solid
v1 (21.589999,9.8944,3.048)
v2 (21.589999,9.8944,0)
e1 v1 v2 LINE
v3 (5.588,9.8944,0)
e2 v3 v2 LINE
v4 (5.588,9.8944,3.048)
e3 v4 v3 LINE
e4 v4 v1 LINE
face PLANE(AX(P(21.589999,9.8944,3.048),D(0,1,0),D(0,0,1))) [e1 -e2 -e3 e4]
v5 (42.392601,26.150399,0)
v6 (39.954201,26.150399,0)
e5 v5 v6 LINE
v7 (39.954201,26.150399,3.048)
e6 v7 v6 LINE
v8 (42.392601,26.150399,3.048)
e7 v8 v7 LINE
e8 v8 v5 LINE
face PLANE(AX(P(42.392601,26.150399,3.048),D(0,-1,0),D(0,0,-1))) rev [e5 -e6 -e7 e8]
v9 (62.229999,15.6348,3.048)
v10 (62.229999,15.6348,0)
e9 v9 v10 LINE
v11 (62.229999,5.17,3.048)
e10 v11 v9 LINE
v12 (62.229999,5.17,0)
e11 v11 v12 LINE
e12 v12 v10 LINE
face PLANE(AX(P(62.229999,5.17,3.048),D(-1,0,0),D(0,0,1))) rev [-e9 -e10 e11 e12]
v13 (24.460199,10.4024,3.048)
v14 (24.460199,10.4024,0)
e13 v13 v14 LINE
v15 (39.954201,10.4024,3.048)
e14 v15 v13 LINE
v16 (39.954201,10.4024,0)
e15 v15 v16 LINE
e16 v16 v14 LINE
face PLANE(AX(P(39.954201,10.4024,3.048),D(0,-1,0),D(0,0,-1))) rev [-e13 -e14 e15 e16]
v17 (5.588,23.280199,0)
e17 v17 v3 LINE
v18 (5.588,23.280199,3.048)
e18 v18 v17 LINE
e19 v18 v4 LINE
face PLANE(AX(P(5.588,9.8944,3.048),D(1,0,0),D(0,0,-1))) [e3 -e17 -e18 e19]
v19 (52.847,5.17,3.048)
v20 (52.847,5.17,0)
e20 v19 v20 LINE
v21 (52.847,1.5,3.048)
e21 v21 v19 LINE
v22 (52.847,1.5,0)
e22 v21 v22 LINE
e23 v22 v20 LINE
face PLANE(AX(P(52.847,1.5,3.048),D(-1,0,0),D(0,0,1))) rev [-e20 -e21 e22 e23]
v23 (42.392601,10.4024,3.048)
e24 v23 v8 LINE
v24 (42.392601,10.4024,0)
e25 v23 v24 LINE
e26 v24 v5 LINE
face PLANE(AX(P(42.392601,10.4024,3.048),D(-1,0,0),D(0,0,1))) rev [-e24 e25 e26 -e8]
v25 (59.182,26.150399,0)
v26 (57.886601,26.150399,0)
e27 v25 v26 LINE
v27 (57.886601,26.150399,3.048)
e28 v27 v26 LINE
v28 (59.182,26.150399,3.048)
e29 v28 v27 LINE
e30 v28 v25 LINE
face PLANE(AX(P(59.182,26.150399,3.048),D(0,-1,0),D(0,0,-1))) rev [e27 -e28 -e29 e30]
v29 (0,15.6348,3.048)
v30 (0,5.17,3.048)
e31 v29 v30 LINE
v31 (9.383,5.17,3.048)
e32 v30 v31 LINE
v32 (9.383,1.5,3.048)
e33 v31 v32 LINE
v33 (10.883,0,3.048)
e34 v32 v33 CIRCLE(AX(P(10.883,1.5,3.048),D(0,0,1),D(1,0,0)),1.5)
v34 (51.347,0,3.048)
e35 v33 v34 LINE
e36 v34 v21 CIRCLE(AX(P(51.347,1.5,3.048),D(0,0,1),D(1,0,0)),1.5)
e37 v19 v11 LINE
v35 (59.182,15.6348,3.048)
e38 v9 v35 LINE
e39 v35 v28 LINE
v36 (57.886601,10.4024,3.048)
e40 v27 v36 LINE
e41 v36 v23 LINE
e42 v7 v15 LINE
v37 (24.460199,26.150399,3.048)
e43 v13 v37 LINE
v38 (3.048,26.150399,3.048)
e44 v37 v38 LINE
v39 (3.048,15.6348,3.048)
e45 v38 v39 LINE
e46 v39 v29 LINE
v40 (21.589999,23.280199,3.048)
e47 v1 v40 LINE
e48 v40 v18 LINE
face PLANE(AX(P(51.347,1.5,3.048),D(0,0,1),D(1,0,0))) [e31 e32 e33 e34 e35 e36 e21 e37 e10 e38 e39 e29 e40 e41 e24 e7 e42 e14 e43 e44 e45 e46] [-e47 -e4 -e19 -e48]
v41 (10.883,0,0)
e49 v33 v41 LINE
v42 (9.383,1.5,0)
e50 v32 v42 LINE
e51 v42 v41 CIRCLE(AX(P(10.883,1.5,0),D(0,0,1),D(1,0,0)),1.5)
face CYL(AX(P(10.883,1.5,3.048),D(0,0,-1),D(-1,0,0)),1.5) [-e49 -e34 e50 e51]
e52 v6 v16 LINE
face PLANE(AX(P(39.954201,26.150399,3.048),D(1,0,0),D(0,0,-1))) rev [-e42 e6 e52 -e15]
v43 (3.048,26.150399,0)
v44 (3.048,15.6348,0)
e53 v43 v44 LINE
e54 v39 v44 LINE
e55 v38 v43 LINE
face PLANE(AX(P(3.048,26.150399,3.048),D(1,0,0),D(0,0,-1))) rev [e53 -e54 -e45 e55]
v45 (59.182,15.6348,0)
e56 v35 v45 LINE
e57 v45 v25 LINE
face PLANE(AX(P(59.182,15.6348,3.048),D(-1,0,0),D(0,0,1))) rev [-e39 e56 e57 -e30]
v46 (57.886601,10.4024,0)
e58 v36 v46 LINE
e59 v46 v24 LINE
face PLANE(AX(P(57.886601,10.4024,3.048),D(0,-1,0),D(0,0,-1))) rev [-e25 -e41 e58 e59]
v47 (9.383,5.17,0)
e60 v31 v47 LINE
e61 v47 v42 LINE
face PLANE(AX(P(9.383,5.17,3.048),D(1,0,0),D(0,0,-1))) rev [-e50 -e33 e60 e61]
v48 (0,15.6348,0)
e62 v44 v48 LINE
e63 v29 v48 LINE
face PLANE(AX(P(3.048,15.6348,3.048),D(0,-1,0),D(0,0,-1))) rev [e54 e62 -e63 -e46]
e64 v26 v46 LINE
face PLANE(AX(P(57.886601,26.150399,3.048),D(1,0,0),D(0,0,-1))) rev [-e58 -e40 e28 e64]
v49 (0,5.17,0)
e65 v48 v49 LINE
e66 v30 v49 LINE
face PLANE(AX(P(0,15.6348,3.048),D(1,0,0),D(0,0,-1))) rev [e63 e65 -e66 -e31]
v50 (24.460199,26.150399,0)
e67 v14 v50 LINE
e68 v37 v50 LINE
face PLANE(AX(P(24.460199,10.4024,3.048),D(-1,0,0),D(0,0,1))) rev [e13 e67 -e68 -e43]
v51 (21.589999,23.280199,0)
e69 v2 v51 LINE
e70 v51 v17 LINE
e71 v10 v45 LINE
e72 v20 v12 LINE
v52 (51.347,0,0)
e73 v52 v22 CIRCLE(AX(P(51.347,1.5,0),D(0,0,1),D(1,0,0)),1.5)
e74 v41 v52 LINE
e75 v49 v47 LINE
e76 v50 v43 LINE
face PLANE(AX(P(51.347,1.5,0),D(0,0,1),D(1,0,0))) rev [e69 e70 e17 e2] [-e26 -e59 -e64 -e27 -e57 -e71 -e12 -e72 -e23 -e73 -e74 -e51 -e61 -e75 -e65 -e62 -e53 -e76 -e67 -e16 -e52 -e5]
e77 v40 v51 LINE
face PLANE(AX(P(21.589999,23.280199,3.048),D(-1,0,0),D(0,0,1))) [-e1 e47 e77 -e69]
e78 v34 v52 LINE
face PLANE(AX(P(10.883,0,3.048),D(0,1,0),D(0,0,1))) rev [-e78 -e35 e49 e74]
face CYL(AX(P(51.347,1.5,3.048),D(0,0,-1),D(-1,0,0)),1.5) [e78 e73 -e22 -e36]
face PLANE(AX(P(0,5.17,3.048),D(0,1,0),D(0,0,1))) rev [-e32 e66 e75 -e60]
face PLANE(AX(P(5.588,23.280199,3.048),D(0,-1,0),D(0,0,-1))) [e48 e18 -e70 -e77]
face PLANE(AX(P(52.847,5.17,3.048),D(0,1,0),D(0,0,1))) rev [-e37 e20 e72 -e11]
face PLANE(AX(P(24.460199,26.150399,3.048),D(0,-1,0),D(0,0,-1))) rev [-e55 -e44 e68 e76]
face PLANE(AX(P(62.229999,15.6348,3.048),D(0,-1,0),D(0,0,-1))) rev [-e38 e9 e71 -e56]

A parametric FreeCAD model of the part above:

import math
import FreeCAD as App
import Part
import Sketcher

V = App.Vector
Q = App.Units.Quantity

doc = App.newDocument("Part")
body = doc.addObject("PartDesign::Body", "Body")

sketch1 = body.newObject("Sketcher::SketchObject", "Sketch")
sketch1.AttachmentSupport = (doc.getObject("XY_Plane"), [""])
sketch1.MapMode = "FlatFace"
sketch1.addGeometry(Part.LineSegment(V(3, 15.6, 0), V(0, 15.6, 0)), False)
sketch1.addGeometry(Part.LineSegment(V(0, 15.6, 0), V(0, 5.2, 0)), False)
sketch1.addGeometry(Part.LineSegment(V(0, 5.2, 0), V(9.4, 5.2, 0)), False)
sketch1.addGeometry(Part.LineSegment(V(9.4, 5.2, 0), V(9.4, 1.5, 0)), False)
sketch1.addGeometry(Part.ArcOfCircle(Part.Circle(V(10.9, 1.5, 0), V(0, 0, 1), 1.5), math.radians(180), math.radians(270)), False)
sketch1.addGeometry(Part.LineSegment(V(10.9, 0, 0), V(51.3, 0, 0)), False)
sketch1.addGeometry(Part.ArcOfCircle(Part.Circle(V(51.3, 1.5, 0), V(0, 0, 1), 1.5), math.radians(-90), math.radians(0)), False)
sketch1.addGeometry(Part.LineSegment(V(52.8, 1.5, 0), V(52.8, 5.2, 0)), False)
sketch1.addGeometry(Part.LineSegment(V(52.8, 5.2, 0), V(62.2, 5.2, 0)), False)
sketch1.addGeometry(Part.LineSegment(V(62.2, 5.2, 0), V(62.2, 15.6, 0)), False)
sketch1.addGeometry(Part.LineSegment(V(62.2, 15.6, 0), V(59.2, 15.6, 0)), False)
sketch1.addGeometry(Part.LineSegment(V(59.2, 15.6, 0), V(59.2, 26.2, 0)), False)
sketch1.addGeometry(Part.LineSegment(V(59.2, 26.2, 0), V(57.9, 26.2, 0)), False)
sketch1.addGeometry(Part.LineSegment(V(57.9, 26.2, 0), V(57.9, 10.4, 0)), False)
sketch1.addGeometry(Part.LineSegment(V(57.9, 10.4, 0), V(42.4, 10.4, 0)), False)
sketch1.addGeometry(Part.LineSegment(V(42.4, 10.4, 0), V(42.4, 26.2, 0)), False)
sketch1.addGeometry(Part.LineSegment(V(42.4, 26.2, 0), V(40, 26.2, 0)), False)
sketch1.addGeometry(Part.LineSegment(V(40, 26.2, 0), V(40, 10.4, 0)), False)
sketch1.addGeometry(Part.LineSegment(V(40, 10.4, 0), V(24.5, 10.4, 0)), False)
sketch1.addGeometry(Part.LineSegment(V(24.5, 10.4, 0), V(24.5, 26.2, 0)), False)
sketch1.addGeometry(Part.LineSegment(V(24.5, 26.2, 0), V(3, 26.2, 0)), False)
sketch1.addGeometry(Part.LineSegment(V(3, 26.2, 0), V(3, 15.6, 0)), False)
sketch1.addGeometry(Part.LineSegment(V(21.6, 9.9, 0), V(5.6, 9.9, 0)), False)
sketch1.addGeometry(Part.LineSegment(V(5.6, 9.9, 0), V(5.6, 23.3, 0)), False)
sketch1.addGeometry(Part.LineSegment(V(5.6, 23.3, 0), V(21.6, 23.3, 0)), False)
sketch1.addGeometry(Part.LineSegment(V(21.6, 23.3, 0), V(21.6, 9.9, 0)), False)
sketch1.addConstraint(Sketcher.Constraint("Coincident", 0, 2, 1, 1))
sketch1.addConstraint(Sketcher.Constraint("Coincident", 1, 2, 2, 1))
sketch1.addConstraint(Sketcher.Constraint("Coincident", 2, 2, 3, 1))
sketch1.addConstraint(Sketcher.Constraint("Tangent", 3, 2, 4, 1))
sketch1.addConstraint(Sketcher.Constraint("Tangent", 4, 2, 5, 1))
sketch1.addConstraint(Sketcher.Constraint("Tangent", 5, 2, 6, 1))
sketch1.addConstraint(Sketcher.Constraint("Tangent", 6, 2, 7, 1))
sketch1.addConstraint(Sketcher.Constraint("Coincident", 7, 2, 8, 1))
sketch1.addConstraint(Sketcher.Constraint("Coincident", 8, 2, 9, 1))
sketch1.addConstraint(Sketcher.Constraint("Coincident", 9, 2, 10, 1))
sketch1.addConstraint(Sketcher.Constraint("Coincident", 10, 2, 11, 1))
sketch1.addConstraint(Sketcher.Constraint("Coincident", 11, 2, 12, 1))
sketch1.addConstraint(Sketcher.Constraint("Coincident", 12, 2, 13, 1))
sketch1.addConstraint(Sketcher.Constraint("Coincident", 13, 2, 14, 1))
sketch1.addConstraint(Sketcher.Constraint("Coincident", 14, 2, 15, 1))
sketch1.addConstraint(Sketcher.Constraint("Coincident", 15, 2, 16, 1))
sketch1.addConstraint(Sketcher.Constraint("Coincident", 16, 2, 17, 1))
sketch1.addConstraint(Sketcher.Constraint("Coincident", 17, 2, 18, 1))
sketch1.addConstraint(Sketcher.Constraint("Coincident", 18, 2, 19, 1))
sketch1.addConstraint(Sketcher.Constraint("Coincident", 19, 2, 20, 1))
sketch1.addConstraint(Sketcher.Constraint("Coincident", 20, 2, 21, 1))
sketch1.addConstraint(Sketcher.Constraint("Coincident", 21, 2, 0, 1))
sketch1.addConstraint(Sketcher.Constraint("Coincident", 22, 2, 23, 1))
sketch1.addConstraint(Sketcher.Constraint("Coincident", 23, 2, 24, 1))
sketch1.addConstraint(Sketcher.Constraint("Coincident", 24, 2, 25, 1))
sketch1.addConstraint(Sketcher.Constraint("Coincident", 25, 2, 22, 1))
sketch1.addConstraint(Sketcher.Constraint("Horizontal", 0))
sketch1.addConstraint(Sketcher.Constraint("Vertical", 1))
sketch1.addConstraint(Sketcher.Constraint("Horizontal", 2))
sketch1.addConstraint(Sketcher.Constraint("Vertical", 3))
sketch1.addConstraint(Sketcher.Constraint("Horizontal", 5))
sketch1.addConstraint(Sketcher.Constraint("Vertical", 7))
sketch1.addConstraint(Sketcher.Constraint("Horizontal", 8))
sketch1.addConstraint(Sketcher.Constraint("Vertical", 9))
sketch1.addConstraint(Sketcher.Constraint("Horizontal", 10))
sketch1.addConstraint(Sketcher.Constraint("Vertical", 11))
sketch1.addConstraint(Sketcher.Constraint("Horizontal", 12))
sketch1.addConstraint(Sketcher.Constraint("Vertical", 13))
sketch1.addConstraint(Sketcher.Constraint("Horizontal", 14))
sketch1.addConstraint(Sketcher.Constraint("Vertical", 15))
sketch1.addConstraint(Sketcher.Constraint("Horizontal", 16))
sketch1.addConstraint(Sketcher.Constraint("Vertical", 17))
sketch1.addConstraint(Sketcher.Constraint("Horizontal", 18))
sketch1.addConstraint(Sketcher.Constraint("Vertical", 19))
sketch1.addConstraint(Sketcher.Constraint("Horizontal", 20))
sketch1.addConstraint(Sketcher.Constraint("Vertical", 21))
sketch1.addConstraint(Sketcher.Constraint("Horizontal", 22))
sketch1.addConstraint(Sketcher.Constraint("Vertical", 23))
sketch1.addConstraint(Sketcher.Constraint("Horizontal", 24))
sketch1.addConstraint(Sketcher.Constraint("Vertical", 25))
sketch1.addConstraint(Sketcher.Constraint("Equal", 4, 6))
sketch1.addConstraint(Sketcher.Constraint("PointOnObject", 0, 2, -2))
sketch1.addConstraint(Sketcher.Constraint("PointOnObject", 4, 2, -1))
sketch1.addConstraint(Sketcher.Constraint("Horizontal", 2, 2, 7, 2))
sketch1.addConstraint(Sketcher.Constraint("Horizontal", 0, 2, 9, 2))
sketch1.addConstraint(Sketcher.Constraint("Horizontal", 12, 2, 15, 2))
sketch1.addConstraint(Sketcher.Constraint("Horizontal", 14, 2, 17, 2))
sketch1.addConstraint(Sketcher.Constraint("Horizontal", 16, 2, 19, 2))
sketch1.addConstraint(Sketcher.Constraint("Equal", 2, 8))
sketch1.addConstraint(Sketcher.Constraint("Equal", 0, 10))
sketch1.addConstraint(Sketcher.Constraint("Equal", 14, 18))
sketch1.addConstraint(Sketcher.Constraint("DistanceX", 0, 2, 0, 1, Q("0.12 in")))
sketch1.addConstraint(Sketcher.Constraint("DistanceX", 14, 2, 14, 1, Q("0.61 in")))
sketch1.addConstraint(Sketcher.Constraint("DistanceX", 22, 2, 22, 1, Q("0.63 in")))
sketch1.addConstraint(Sketcher.Constraint("DistanceY", 13, 2, 13, 1, Q("0.62 in")))
sketch1.addConstraint(Sketcher.Constraint("DistanceX", 21, 2, 22, 2, Q("0.1 in")))
sketch1.addConstraint(Sketcher.Constraint("DistanceX", 12, 2, 12, 1, Q("0.051 in")))
sketch1.addConstraint(Sketcher.Constraint("DistanceX", 16, 2, 16, 1, Q("0.096 in")))
sketch1.addConstraint(Sketcher.Constraint("DistanceX", 20, 2, 20, 1, Q("0.843 in")))
sketch1.addConstraint(Sketcher.Constraint("DistanceY", 1, 2, 1, 1, Q("0.412 in")))
sketch1.addConstraint(Sketcher.Constraint("DistanceY", 11, 1, 11, 2, Q("0.414 in")))
sketch1.addConstraint(Sketcher.Constraint("DistanceY", 23, 1, 23, 2, Q("0.527 in")))
sketch1.addConstraint(Sketcher.Constraint("Radius", 4, Q("1.5 mm")))
sketch1.addConstraint(Sketcher.Constraint("DistanceY", 25, 2, 18, 2, Q("0.02 in")))
sketch1.addConstraint(Sketcher.Constraint("DistanceX", 2, 1, 2, 2, Q("9.383 mm")))
sketch1.addConstraint(Sketcher.Constraint("DistanceY", 3, 2, 3, 1, Q("3.67 mm")))
pad1 = body.newObject("PartDesign::Pad", "Pad")
pad1.Profile = sketch1
pad1.Length = Q("0.12 in")

doc.recompute()
